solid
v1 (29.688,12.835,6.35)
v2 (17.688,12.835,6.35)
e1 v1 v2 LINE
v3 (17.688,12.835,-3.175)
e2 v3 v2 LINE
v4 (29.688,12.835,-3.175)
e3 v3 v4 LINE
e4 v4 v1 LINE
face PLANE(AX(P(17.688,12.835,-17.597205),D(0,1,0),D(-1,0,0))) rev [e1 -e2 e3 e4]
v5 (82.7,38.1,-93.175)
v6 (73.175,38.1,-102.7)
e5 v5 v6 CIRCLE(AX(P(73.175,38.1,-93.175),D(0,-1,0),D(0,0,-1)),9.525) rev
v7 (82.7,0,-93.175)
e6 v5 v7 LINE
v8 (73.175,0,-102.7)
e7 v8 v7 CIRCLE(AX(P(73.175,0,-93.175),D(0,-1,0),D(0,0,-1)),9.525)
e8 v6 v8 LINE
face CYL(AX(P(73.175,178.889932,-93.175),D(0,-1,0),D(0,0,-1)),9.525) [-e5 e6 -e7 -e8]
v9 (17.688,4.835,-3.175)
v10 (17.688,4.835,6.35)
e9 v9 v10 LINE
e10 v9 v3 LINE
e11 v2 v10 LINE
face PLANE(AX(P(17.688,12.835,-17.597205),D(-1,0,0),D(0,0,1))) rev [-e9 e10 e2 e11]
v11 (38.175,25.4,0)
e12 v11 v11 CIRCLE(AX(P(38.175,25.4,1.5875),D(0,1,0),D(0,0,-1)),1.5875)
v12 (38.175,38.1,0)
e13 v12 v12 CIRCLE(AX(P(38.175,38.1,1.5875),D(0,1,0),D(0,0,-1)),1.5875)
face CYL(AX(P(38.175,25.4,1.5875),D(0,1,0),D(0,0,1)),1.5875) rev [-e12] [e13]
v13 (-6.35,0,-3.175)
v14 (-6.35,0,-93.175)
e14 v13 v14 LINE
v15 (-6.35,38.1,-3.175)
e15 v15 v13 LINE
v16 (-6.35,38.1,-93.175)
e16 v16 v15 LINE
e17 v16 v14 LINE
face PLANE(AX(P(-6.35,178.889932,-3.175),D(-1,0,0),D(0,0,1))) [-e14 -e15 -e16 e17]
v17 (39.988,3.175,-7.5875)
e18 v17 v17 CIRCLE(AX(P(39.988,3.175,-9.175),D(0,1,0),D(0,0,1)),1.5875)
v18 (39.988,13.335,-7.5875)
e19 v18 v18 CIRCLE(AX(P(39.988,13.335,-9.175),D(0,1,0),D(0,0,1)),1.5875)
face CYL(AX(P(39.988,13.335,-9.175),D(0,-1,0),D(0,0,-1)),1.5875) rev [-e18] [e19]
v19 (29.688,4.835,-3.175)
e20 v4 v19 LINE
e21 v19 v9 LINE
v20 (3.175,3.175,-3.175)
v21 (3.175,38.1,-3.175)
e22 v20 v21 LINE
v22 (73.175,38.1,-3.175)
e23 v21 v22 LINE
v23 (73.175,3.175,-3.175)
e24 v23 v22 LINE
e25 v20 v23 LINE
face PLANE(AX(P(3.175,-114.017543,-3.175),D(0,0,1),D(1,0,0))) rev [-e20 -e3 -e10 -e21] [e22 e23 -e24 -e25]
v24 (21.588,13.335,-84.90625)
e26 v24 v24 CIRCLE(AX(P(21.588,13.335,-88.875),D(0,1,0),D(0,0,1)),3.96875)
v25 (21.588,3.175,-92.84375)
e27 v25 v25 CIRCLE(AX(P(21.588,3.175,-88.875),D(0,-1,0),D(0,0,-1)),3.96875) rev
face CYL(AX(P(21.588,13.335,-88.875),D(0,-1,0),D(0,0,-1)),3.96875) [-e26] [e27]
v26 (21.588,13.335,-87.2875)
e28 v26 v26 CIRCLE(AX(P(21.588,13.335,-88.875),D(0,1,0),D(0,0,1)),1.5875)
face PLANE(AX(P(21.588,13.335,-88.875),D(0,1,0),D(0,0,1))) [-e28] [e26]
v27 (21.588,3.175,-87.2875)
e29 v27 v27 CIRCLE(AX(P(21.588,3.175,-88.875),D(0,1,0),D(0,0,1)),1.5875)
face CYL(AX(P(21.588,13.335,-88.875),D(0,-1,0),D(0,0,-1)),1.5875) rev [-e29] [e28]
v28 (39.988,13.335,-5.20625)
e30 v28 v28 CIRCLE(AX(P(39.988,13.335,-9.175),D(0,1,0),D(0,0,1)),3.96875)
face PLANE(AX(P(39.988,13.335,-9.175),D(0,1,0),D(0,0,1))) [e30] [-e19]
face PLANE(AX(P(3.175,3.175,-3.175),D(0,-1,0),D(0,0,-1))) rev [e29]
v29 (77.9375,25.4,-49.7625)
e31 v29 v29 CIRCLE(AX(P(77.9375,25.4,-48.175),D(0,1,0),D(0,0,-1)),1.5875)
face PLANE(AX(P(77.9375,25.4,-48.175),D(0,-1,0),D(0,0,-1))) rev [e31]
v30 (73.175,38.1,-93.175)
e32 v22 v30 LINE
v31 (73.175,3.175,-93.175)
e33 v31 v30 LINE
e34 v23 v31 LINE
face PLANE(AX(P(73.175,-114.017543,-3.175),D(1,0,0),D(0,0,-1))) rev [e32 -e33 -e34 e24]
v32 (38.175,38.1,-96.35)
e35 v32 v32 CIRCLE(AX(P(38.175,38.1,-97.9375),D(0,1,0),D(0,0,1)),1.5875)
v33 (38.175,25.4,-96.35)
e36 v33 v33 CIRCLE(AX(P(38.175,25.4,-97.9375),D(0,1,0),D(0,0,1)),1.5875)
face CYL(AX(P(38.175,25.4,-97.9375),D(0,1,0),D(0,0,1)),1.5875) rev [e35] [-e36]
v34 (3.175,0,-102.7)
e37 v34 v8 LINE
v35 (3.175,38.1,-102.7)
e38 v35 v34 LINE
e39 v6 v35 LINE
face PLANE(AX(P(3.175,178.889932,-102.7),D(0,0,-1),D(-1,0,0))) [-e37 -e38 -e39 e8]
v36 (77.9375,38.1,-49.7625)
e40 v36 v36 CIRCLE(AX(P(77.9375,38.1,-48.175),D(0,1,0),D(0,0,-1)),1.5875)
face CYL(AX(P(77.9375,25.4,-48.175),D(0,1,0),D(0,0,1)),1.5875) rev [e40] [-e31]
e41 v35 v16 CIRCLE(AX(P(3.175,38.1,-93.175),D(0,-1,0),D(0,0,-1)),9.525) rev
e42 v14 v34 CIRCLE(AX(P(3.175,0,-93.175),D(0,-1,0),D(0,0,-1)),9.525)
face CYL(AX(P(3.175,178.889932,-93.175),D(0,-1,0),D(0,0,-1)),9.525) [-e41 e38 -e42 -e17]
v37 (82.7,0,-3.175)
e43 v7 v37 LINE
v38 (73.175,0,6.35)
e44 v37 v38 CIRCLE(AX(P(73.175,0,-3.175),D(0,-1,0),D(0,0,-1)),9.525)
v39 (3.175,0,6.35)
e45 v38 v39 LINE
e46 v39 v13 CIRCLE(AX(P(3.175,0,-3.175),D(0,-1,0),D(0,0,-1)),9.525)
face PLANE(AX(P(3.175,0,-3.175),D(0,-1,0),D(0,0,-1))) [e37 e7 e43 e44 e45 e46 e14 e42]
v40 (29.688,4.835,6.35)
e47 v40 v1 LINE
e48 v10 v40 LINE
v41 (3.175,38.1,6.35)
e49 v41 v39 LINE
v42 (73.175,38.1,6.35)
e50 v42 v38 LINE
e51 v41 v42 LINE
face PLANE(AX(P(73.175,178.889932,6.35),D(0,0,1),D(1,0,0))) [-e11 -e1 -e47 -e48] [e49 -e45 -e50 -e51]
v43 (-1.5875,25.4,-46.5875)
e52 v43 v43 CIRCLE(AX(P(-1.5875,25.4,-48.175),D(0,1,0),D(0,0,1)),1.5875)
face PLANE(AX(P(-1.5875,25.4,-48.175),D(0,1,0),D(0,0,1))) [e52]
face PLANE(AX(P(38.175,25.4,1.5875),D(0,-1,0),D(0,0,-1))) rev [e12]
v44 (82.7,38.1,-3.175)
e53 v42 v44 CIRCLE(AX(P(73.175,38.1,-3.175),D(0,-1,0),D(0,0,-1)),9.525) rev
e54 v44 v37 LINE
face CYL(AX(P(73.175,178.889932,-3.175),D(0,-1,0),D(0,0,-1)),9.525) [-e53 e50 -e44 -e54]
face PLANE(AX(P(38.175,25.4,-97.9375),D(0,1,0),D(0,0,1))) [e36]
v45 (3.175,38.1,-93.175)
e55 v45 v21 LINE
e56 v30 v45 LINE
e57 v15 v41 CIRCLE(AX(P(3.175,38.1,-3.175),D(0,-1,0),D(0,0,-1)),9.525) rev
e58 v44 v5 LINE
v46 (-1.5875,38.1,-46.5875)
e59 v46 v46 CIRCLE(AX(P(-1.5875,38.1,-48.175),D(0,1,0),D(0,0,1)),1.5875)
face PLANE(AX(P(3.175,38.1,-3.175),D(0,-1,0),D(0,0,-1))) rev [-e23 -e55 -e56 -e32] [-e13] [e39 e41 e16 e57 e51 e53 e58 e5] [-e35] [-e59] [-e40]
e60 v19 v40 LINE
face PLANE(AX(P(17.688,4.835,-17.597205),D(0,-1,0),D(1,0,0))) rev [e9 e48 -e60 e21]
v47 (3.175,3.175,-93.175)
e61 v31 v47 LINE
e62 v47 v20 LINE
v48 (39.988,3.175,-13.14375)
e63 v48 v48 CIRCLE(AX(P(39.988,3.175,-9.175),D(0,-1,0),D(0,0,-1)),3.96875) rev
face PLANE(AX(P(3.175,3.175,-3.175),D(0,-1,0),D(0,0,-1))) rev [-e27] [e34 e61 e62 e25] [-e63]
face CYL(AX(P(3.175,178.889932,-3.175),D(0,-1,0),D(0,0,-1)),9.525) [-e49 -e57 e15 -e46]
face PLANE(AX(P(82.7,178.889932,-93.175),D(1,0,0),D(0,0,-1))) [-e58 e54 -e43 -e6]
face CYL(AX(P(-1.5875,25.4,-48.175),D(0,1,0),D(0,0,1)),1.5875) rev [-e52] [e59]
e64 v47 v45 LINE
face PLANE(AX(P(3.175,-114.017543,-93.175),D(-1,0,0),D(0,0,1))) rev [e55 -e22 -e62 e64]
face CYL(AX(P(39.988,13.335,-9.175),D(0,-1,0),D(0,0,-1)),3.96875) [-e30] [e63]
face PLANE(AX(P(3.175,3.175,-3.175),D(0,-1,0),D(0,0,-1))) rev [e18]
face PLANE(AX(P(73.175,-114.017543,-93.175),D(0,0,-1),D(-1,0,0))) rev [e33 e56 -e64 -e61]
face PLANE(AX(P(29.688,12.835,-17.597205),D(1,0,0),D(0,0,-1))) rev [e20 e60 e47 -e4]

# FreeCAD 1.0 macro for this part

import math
import FreeCAD as App
import Part
import Sketcher

V = App.Vector
Q = App.Units.Quantity

doc = App.newDocument("Part")
body = doc.addObject("PartDesign::Body", "Body")

# Sketch on XZ plane
sketch1 = body.newObject("Sketcher::SketchObject", "Sketch")
sketch1.AttachmentSupport = (doc.getObject("XZ_Plane"), [""])
sketch1.MapMode = "FlatFace"
sketch1.addGeometry([
    Part.LineSegment(V(3.175, 0, 0), V(73.175, 0, 0)),  # 0
    Part.ArcOfCircle(Part.Circle(V(73.175, -3.175, 0), V(0, 0, 1), 3.175), math.radians(0), math.radians(90)),  # 1
    Part.LineSegment(V(76.35, -3.175, 0), V(76.35, -93.175, 0)),  # 2
    Part.ArcOfCircle(Part.Circle(V(73.175, -93.175, 0), V(0, 0, 1), 3.175), math.radians(-90), math.radians(0)),  # 3
    Part.LineSegment(V(73.175, -96.35, 0), V(3.175, -96.35, 0)),  # 4
    Part.ArcOfCircle(Part.Circle(V(3.175, -93.175, 0), V(0, 0, 1), 3.175), math.radians(-180), math.radians(-90)),  # 5
    Part.LineSegment(V(0, -93.175, 0), V(0, -3.175, 0)),  # 6
    Part.ArcOfCircle(Part.Circle(V(3.175, -3.175, 0), V(0, 0, 1), 3.175), math.radians(90), math.radians(180)),  # 7
], False)
sketch1.addConstraint([
    Sketcher.Constraint("Tangent", 0, 2, 1, 2),
    Sketcher.Constraint("Tangent", 1, 1, 2, 1),
    Sketcher.Constraint("Tangent", 2, 2, 3, 2),
    Sketcher.Constraint("Tangent", 3, 1, 4, 1),
    Sketcher.Constraint("Tangent", 4, 2, 5, 2),
    Sketcher.Constraint("Tangent", 5, 1, 6, 1),
    Sketcher.Constraint("Tangent", 6, 2, 7, 2),
    Sketcher.Constraint("Tangent", 7, 1, 0, 1),
    Sketcher.Constraint("Horizontal", 0),
    Sketcher.Constraint("Vertical", 2),
    Sketcher.Constraint("Horizontal", 4),
    Sketcher.Constraint("Vertical", 6),
    Sketcher.Constraint("Equal", 1, 3),
    Sketcher.Constraint("Equal", 3, 5),
    Sketcher.Constraint("Equal", 5, 7),
    Sketcher.Constraint("PointOnObject", 0, 2, -1),
    Sketcher.Constraint("PointOnObject", 5, 1, -2),
    Sketcher.Constraint("Radius", 1, Q("0.125 in")),
    Sketcher.Constraint("DistanceX", 0, 1, 0, 2, Q("70 mm")),
    Sketcher.Constraint("DistanceY", 2, 2, 2, 1, Q("90 mm")),
])
pad1 = body.newObject("PartDesign::Pad", "Pad")
pad1.Profile = sketch1
pad1.Length = Q("1.5 in")
pad1.Reversed = True

# Sketch on XZ plane
sketch2 = body.newObject("Sketcher::SketchObject", "Sketch001")
sketch2.AttachmentSupport = (doc.getObject("XZ_Plane"), [""])
sketch2.MapMode = "FlatFace"
sketch2.AttachmentOffset = App.Placement(V(0, 0, -1.5 * 25.4), App.Rotation())
sketch2.addGeometry([
    Part.LineSegment(V(3.175, -93.175, 0), V(3.175, -3.175, 0)),
    Part.LineSegment(V(3.175, -3.175, 0), V(73.175, -3.175, 0)),
    Part.LineSegment(V(73.175, -3.175, 0), V(73.175, -93.175, 0)),
    Part.LineSegment(V(73.175, -93.175, 0), V(3.175, -93.175, 0)),
], False)
sketch2.addConstraint([
    Sketcher.Constraint("Coincident", 0, 2, 1, 1),
    Sketcher.Constraint("Coincident", 1, 2, 2, 1),
    Sketcher.Constraint("Coincident", 2, 2, 3, 1),
    Sketcher.Constraint("Coincident", 3, 2, 0, 1),
    Sketcher.Constraint("Vertical", 0),
    Sketcher.Constraint("Horizontal", 1),
    Sketcher.Constraint("Vertical", 2),
    Sketcher.Constraint("Horizontal", 3),
    Sketcher.Constraint("DistanceX", -1, 1, 0, 2, Q("0.125 in")),
    Sketcher.Constraint("DistanceY", 0, 2, -1, 1, Q("0.125 in")),
    Sketcher.Constraint("DistanceX", 1, 1, 1, 2, Q("70 mm")),
    Sketcher.Constraint("DistanceY", 0, 1, 0, 2, Q("90 mm")),
])
pocket1 = body.newObject("PartDesign::Pocket", "Pocket")
pocket1.Profile = sketch2
pocket1.Length = Q("1.375 in")
pocket1.Reversed = True

# Sketch on XZ plane
sketch3 = body.newObject("Sketcher::SketchObject", "Sketch002")
sketch3.AttachmentSupport = (doc.getObject("XZ_Plane"), [""])
sketch3.MapMode = "FlatFace"
sketch3.AttachmentOffset = App.Placement(V(0, 0, -0.125 * 25.4), App.Rotation())
sketch3.addGeometry([
    Part.Circle(V(21.588, -88.875, 0), V(0, 0, 1), 3.96875),
    Part.Circle(V(21.588, -88.875, 0), V(0, 0, 1), 1.5875),
    Part.Circle(V(39.988, -9.175, 0), V(0, 0, 1), 3.96875),
    Part.Circle(V(39.988, -9.175, 0), V(0, 0, 1), 1.5875),
], False)
sketch3.addConstraint([
    Sketcher.Constraint("Coincident", 1, 3, 0, 3),
    Sketcher.Constraint("Coincident", 3, 3, 2, 3),
    Sketcher.Constraint("Equal", 0, 2),
    Sketcher.Constraint("Equal", 1, 3),
    Sketcher.Constraint("Diameter", 0, Q("0.3125 in")),
    Sketcher.Constraint("Diameter", 1, Q("0.125 in")),
    Sketcher.Constraint("DistanceX", -1, 1, 0, 3, Q("21.588 mm")),
    Sketcher.Constraint("DistanceY", 0, 3, -1, 1, Q("88.875 mm")),
    Sketcher.Constraint("DistanceX", -1, 1, 2, 3, Q("39.988 mm")),
    Sketcher.Constraint("DistanceY", 2, 3, -1, 1, Q("9.175 mm")),
])
pad2 = body.newObject("PartDesign::Pad", "Pad001")
pad2.Profile = sketch3
pad2.Length = Q("0.4 in")
pad2.Reversed = True

# Sketch on XZ plane
sketch4 = body.newObject("Sketcher::SketchObject", "Sketch003")
sketch4.AttachmentSupport = (doc.getObject("XZ_Plane"), [""])
sketch4.MapMode = "FlatFace"
sketch4.addGeometry([
    Part.LineSegment(V(-6.35, -3.175, 0), V(-6.35, -93.175, 0)),  # 0
    Part.ArcOfCircle(Part.Circle(V(3.175, -93.175, 0), V(0, 0, 1), 9.525), math.radians(180), math.radians(270)),  # 1
    Part.LineSegment(V(3.175, -102.7, 0), V(73.175, -102.7, 0)),  # 2
    Part.ArcOfCircle(Part.Circle(V(73.175, -93.175, 0), V(0, 0, 1), 9.525), math.radians(-90), math.radians(0)),  # 3
    Part.LineSegment(V(82.7, -93.175, 0), V(82.7, -3.175, 0)),  # 4
    Part.ArcOfCircle(Part.Circle(V(73.175, -3.175, 0), V(0, 0, 1), 9.525), math.radians(0), math.radians(90)),  # 5
    Part.LineSegment(V(73.175, 6.35, 0), V(3.175, 6.35, 0)),  # 6
    Part.ArcOfCircle(Part.Circle(V(3.175, -3.175, 0), V(0, 0, 1), 9.525), math.radians(90), math.radians(180)),  # 7
    Part.LineSegment(V(0, -93.175, 0), V(0, -3.175, 0)),  # 8
    Part.ArcOfCircle(Part.Circle(V(3.175, -3.175, 0), V(0, 0, 1), 3.175), math.radians(90), math.radians(180)),  # 9
    Part.LineSegment(V(3.175, 0, 0), V(73.175, 0, 0)),  # 10
    Part.ArcOfCircle(Part.Circle(V(73.175, -3.175, 0), V(0, 0, 1), 3.175), math.radians(0), math.radians(90)),  # 11
    Part.LineSegment(V(76.35, -3.175, 0), V(76.35, -93.175, 0)),  # 12
    Part.ArcOfCircle(Part.Circle(V(73.175, -93.175, 0), V(0, 0, 1), 3.175), math.radians(-90), math.radians(0)),  # 13
    Part.LineSegment(V(73.175, -96.35, 0), V(3.175, -96.35, 0)),  # 14
    Part.ArcOfCircle(Part.Circle(V(3.175, -93.175, 0), V(0, 0, 1), 3.175), math.radians(-180), math.radians(-90)),  # 15
], False)
sketch4.addConstraint([
    Sketcher.Constraint("Tangent", 0, 2, 1, 1),
    Sketcher.Constraint("Tangent", 1, 2, 2, 1),
    Sketcher.Constraint("Tangent", 2, 2, 3, 1),
    Sketcher.Constraint("Tangent", 3, 2, 4, 1),
    Sketcher.Constraint("Tangent", 4, 2, 5, 1),
    Sketcher.Constraint("Tangent", 5, 2, 6, 1),
    Sketcher.Constraint("Tangent", 6, 2, 7, 1),
    Sketcher.Constraint("Tangent", 7, 2, 0, 1),
    Sketcher.Constraint("Tangent", 8, 2, 9, 2),
    Sketcher.Constraint("Tangent", 9, 1, 10, 1),
    Sketcher.Constraint("Tangent", 10, 2, 11, 2),
    Sketcher.Constraint("Tangent", 11, 1, 12, 1),
    Sketcher.Constraint("Tangent", 12, 2, 13, 2),
    Sketcher.Constraint("Tangent", 13, 1, 14, 1),
    Sketcher.Constraint("Tangent", 14, 2, 15, 2),
    Sketcher.Constraint("Tangent", 15, 1, 8, 1),
    Sketcher.Constraint("Vertical", 0),
    Sketcher.Constraint("Horizontal", 2),
    Sketcher.Constraint("Vertical", 4),
    Sketcher.Constraint("Horizontal", 6),
    Sketcher.Constraint("Vertical", 8),
    Sketcher.Constraint("Horizontal", 10),
    Sketcher.Constraint("Vertical", 12),
    Sketcher.Constraint("Horizontal", 14),
    Sketcher.Constraint("Coincident", 9, 3, 7, 3),
    Sketcher.Constraint("Coincident", 11, 3, 5, 3),
    Sketcher.Constraint("Coincident", 13, 3, 3, 3),
    Sketcher.Constraint("Equal", 1, 3),
    Sketcher.Constraint("Equal", 3, 5),
    Sketcher.Constraint("Equal", 5, 7),
    Sketcher.Constraint("Equal", 13, 15),
    Sketcher.Constraint("PointOnObject", 8, 2, -2),
    Sketcher.Constraint("PointOnObject", 9, 1, -1),
    Sketcher.Constraint("Radius", 1, Q("0.375 in")),
    Sketcher.Constraint("Radius", 9, Q("0.125 in")),
    Sketcher.Constraint("DistanceX", 2, 1, 2, 2, Q("70 mm")),
    Sketcher.Constraint("DistanceY", 0, 2, 0, 1, Q("90 mm")),
])
pad3 = body.newObject("PartDesign::Pad", "Pad002")
pad3.Profile = sketch4
pad3.Length = Q("1.5 in")
pad3.Reversed = True

# Sketch on XZ plane
sketch5 = body.newObject("Sketcher::SketchObject", "Sketch004")
sketch5.AttachmentSupport = (doc.getObject("XZ_Plane"), [""])
sketch5.MapMode = "FlatFace"
sketch5.AttachmentOffset = App.Placement(V(0, 0, -1.5 * 25.4), App.Rotation())
sketch5.addGeometry([
    Part.Circle(V(-1.5875, -48.175, 0), V(0, 0, 1), 1.5875),
    Part.Circle(V(38.175, -97.9375, 0), V(0, 0, 1), 1.5875),
    Part.Circle(V(38.175, 1.5875, 0), V(0, 0, 1), 1.5875),
    Part.Circle(V(77.9375, -48.175, 0), V(0, 0, 1), 1.5875),
], False)
sketch5.addConstraint([
    Sketcher.Constraint("Equal", 0, 1),
    Sketcher.Constraint("Equal", 1, 2),
    Sketcher.Constraint("Equal", 2, 3),
    Sketcher.Constraint("Horizontal", 0, 3, 3, 3),
    Sketcher.Constraint("Vertical", 1, 3, 2, 3),
    Sketcher.Constraint("Diameter", 0, Q("0.125 in")),
    Sketcher.Constraint("DistanceX", 0, 3, -1, 1, Q("0.0625 in")),
    Sketcher.Constraint("DistanceY", -1, 1, 2, 3, Q("0.0625 in")),
    Sketcher.Constraint("DistanceY", 0, 3, -1, 1, Q("48.175 mm")),
    Sketcher.Constraint("DistanceX", -1, 1, 1, 3, Q("38.175 mm")),
    Sketcher.Constraint("DistanceY", 1, 3, -1, 1, Q("97.9375 mm")),
    Sketcher.Constraint("DistanceX", -1, 1, 3, 3, Q("77.9375 mm")),
])
pocket2 = body.newObject("PartDesign::Pocket", "Pocket001")
pocket2.Profile = sketch5
pocket2.Length = Q("0.5 in")
pocket2.Reversed = True

# Sketch on XY plane
sketch6 = body.newObject("Sketcher::SketchObject", "Sketch005")
sketch6.AttachmentSupport = (doc.getObject("XY_Plane"), [""])
sketch6.MapMode = "FlatFace"
sketch6.AttachmentOffset = App.Placement(V(0, 0, 0.25 * 25.4), App.Rotation())
sketch6.addGeometry([
    Part.LineSegment(V(17.688, 12.835, 0), V(17.688, 4.835, 0)),
    Part.LineSegment(V(17.688, 4.835, 0), V(29.688, 4.835, 0)),
    Part.LineSegment(V(29.688, 4.835, 0), V(29.688, 12.835, 0)),
    Part.LineSegment(V(29.688, 12.835, 0), V(17.688, 12.835, 0)),
], False)
sketch6.addConstraint([
    Sketcher.Constraint("Coincident", 0, 2, 1, 1),
    Sketcher.Constraint("Coincident", 1, 2, 2, 1),
    Sketcher.Constraint("Coincident", 2, 2, 3, 1),
    Sketcher.Constraint("Coincident", 3, 2, 0, 1),
    Sketcher.Constraint("Vertical", 0),
    Sketcher.Constraint("Horizontal", 1),
    Sketcher.Constraint("Vertical", 2),
    Sketcher.Constraint("Horizontal", 3),
    Sketcher.Constraint("DistanceX", 1, 1, 1, 2, Q("12 mm")),
    Sketcher.Constraint("DistanceY", 0, 2, 0, 1, Q("8 mm")),
    Sketcher.Constraint("DistanceX", -1, 1, 0, 2, Q("17.688 mm")),
    Sketcher.Constraint("DistanceY", -1, 1, 0, 2, Q("4.835 mm")),
])
pocket3 = body.newObject("PartDesign::Pocket", "Pocket002")
pocket3.Profile = sketch6
pocket3.Length = Q("0.375 in")

doc.recompute()
